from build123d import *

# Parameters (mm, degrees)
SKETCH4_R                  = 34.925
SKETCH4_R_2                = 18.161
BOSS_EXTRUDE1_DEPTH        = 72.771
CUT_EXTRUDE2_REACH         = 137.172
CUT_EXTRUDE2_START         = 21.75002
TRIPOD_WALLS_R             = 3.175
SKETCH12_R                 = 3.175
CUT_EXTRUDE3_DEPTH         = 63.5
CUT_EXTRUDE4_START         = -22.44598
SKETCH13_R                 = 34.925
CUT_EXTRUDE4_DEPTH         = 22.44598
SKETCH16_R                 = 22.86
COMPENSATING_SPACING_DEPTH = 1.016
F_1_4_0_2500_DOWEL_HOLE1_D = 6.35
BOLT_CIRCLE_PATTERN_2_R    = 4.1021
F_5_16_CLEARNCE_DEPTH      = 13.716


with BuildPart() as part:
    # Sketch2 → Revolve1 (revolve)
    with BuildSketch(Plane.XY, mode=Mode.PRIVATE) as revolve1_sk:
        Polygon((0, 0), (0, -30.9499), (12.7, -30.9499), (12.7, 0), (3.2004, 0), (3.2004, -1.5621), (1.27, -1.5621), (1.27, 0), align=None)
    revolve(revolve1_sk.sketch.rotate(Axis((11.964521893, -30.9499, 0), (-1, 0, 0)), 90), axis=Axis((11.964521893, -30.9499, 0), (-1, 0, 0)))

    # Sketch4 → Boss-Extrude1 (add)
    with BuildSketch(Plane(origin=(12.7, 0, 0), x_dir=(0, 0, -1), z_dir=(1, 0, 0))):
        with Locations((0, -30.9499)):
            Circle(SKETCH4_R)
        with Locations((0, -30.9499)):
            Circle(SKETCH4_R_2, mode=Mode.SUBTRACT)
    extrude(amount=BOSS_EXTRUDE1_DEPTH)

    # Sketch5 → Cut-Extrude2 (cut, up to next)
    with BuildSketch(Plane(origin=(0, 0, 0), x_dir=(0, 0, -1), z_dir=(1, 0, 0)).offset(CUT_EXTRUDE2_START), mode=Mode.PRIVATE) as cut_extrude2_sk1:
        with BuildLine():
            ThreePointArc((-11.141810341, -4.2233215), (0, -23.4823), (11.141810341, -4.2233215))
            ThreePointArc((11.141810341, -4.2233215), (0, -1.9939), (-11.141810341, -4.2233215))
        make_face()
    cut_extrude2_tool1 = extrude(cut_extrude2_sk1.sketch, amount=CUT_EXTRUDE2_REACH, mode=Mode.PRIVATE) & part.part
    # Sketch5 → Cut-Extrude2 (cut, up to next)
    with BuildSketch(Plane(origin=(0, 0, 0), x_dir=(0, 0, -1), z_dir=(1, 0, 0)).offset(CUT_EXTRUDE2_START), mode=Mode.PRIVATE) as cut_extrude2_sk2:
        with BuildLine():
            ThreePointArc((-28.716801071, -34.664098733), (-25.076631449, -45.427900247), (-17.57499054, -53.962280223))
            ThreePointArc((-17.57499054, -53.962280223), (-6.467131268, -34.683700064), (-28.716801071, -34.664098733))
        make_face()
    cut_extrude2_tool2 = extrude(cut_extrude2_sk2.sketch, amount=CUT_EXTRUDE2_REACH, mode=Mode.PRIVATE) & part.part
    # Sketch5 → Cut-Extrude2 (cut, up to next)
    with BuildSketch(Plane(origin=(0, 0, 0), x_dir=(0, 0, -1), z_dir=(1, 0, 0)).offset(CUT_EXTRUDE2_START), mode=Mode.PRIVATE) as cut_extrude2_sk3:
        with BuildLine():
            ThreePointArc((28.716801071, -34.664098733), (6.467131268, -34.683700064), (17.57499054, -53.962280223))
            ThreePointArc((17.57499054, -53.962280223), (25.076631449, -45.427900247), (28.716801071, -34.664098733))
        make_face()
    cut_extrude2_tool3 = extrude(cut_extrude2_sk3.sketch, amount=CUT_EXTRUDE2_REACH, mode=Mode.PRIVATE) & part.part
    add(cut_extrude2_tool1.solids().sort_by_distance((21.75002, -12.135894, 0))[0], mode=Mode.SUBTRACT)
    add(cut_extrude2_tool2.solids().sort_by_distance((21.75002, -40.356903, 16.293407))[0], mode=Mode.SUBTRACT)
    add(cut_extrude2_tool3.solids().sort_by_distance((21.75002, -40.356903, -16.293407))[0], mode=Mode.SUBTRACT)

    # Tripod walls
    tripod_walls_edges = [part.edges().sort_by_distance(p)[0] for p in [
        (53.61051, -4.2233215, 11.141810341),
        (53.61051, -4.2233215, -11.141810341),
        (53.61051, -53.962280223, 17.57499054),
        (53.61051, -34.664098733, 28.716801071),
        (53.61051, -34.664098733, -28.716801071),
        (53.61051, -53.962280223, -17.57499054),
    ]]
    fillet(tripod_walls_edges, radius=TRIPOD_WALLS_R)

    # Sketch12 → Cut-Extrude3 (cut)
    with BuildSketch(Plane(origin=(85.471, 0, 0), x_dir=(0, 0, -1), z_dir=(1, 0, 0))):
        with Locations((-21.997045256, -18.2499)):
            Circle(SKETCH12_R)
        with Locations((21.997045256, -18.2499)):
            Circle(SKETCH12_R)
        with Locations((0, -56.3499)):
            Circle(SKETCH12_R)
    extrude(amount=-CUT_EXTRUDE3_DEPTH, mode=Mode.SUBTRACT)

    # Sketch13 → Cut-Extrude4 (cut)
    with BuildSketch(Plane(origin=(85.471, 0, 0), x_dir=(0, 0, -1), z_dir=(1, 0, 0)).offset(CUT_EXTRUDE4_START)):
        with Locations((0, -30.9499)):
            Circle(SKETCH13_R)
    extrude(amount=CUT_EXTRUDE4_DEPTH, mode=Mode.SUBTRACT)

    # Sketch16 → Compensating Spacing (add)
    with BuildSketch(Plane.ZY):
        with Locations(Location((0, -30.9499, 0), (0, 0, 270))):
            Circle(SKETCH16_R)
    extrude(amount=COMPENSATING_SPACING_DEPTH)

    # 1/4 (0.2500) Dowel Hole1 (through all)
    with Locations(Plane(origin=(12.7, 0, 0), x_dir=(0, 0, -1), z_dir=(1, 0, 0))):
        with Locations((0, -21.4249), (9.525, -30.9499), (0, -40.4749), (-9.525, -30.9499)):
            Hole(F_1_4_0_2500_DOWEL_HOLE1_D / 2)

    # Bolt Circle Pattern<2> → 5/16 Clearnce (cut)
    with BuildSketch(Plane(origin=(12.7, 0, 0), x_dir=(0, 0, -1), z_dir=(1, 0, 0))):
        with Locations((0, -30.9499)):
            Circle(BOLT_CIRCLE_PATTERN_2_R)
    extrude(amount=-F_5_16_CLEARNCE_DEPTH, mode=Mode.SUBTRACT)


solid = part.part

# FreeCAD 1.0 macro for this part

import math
import FreeCAD as App
import Part
import Sketcher
Q = App.Units.Quantity


def edges_at(feature, points):
    """Names of the edges that pass closest to the given points."""
    edges = feature.Shape.Edges
    near = lambda p: min(range(len(edges)), key=lambda i: edges[i].distToShape(Part.Vertex(*p))[0])
    return sorted({f"Edge{near(p) + 1}" for p in points})

doc = App.newDocument("Part")
body = doc.addObject("PartDesign::Body", "Body")

sketch1 = body.newObject("Sketcher::SketchObject", "Sketch")
sketch1.AttachmentSupport = (doc.getObject("XY_Plane"), [""])
sketch1.MapMode = "FlatFace"
sketch1.addGeometry(Part.LineSegment(App.Vector(0, 0, 0), App.Vector(0, -30.9, 0)), False)
sketch1.addGeometry(Part.LineSegment(App.Vector(0, -30.9, 0), App.Vector(12.7, -30.9, 0)), False)
sketch1.addGeometry(Part.LineSegment(App.Vector(12.7, -30.9, 0), App.Vector(12.7, 0, 0)), False)
sketch1.addGeometry(Part.LineSegment(App.Vector(12.7, 0, 0), App.Vector(3.2, 0, 0)), False)
sketch1.addGeometry(Part.LineSegment(App.Vector(3.2, 0, 0), App.Vector(3.2, -1.6, 0)), False)
sketch1.addGeometry(Part.LineSegment(App.Vector(3.2, -1.6, 0), App.Vector(1.3, -1.6, 0)), False)
sketch1.addGeometry(Part.LineSegment(App.Vector(1.3, -1.6, 0), App.Vector(1.3, 0, 0)), False)
sketch1.addGeometry(Part.LineSegment(App.Vector(1.3, 0, 0), App.Vector(0, 0, 0)), False)
sketch1.addGeometry(Part.LineSegment(App.Vector(12.7, -30.9, 0), App.Vector(0, -30.9, 0)), True)
sketch1.addConstraint(Sketcher.Constraint("Coincident", 0, 2, 1, 1))
sketch1.addConstraint(Sketcher.Constraint("Coincident", 1, 2, 2, 1))
sketch1.addConstraint(Sketcher.Constraint("Coincident", 2, 2, 3, 1))
sketch1.addConstraint(Sketcher.Constraint("Coincident", 3, 2, 4, 1))
sketch1.addConstraint(Sketcher.Constraint("Coincident", 4, 2, 5, 1))
sketch1.addConstraint(Sketcher.Constraint("Coincident", 5, 2, 6, 1))
sketch1.addConstraint(Sketcher.Constraint("Coincident", 6, 2, 7, 1))
sketch1.addConstraint(Sketcher.Constraint("Coincident", 7, 2, 0, 1))
sketch1.addConstraint(Sketcher.Constraint("Vertical", 0))
sketch1.addConstraint(Sketcher.Constraint("Horizontal", 1))
sketch1.addConstraint(Sketcher.Constraint("Vertical", 2))
sketch1.addConstraint(Sketcher.Constraint("Horizontal", 3))
sketch1.addConstraint(Sketcher.Constraint("Vertical", 4))
sketch1.addConstraint(Sketcher.Constraint("Horizontal", 5))
sketch1.addConstraint(Sketcher.Constraint("Vertical", 6))
sketch1.addConstraint(Sketcher.Constraint("Horizontal", 7))
sketch1.addConstraint(Sketcher.Constraint("Horizontal", 8))
sketch1.addConstraint(Sketcher.Constraint("Coincident", 7, 2, -1, 1))
sketch1.addConstraint(Sketcher.Constraint("Coincident", 8, 1, 1, 2))
sketch1.addConstraint(Sketcher.Constraint("PointOnObject", 2, 2, -1))
sketch1.addConstraint(Sketcher.Constraint("PointOnObject", 8, 2, -2))
sketch1.addConstraint(Sketcher.Constraint("DistanceX", 1, 1, 1, 2, Q("0.5 in")))
sketch1.addConstraint(Sketcher.Constraint("DistanceX", 7, 2, 7, 1, Q("0.05 in")))
sketch1.addConstraint(Sketcher.Constraint("DistanceX", 3, 2, 3, 1, Q("0.374 in")))
sketch1.addConstraint(Sketcher.Constraint("DistanceY", 0, 2, 0, 1, Q("1.2185 in")))
sketch1.addConstraint(Sketcher.Constraint("DistanceY", 4, 2, 4, 1, Q("0.0615 in")))
revolution = body.newObject("PartDesign::Revolution", "Revolution")
revolution.Profile = sketch1
revolution.ReferenceAxis = (sketch1, ["Axis0"])
revolution.Angle = 360

sketch2 = body.newObject("Sketcher::SketchObject", "Sketch001")
sketch2.AttachmentSupport = (doc.getObject("YZ_Plane"), [""])
sketch2.MapMode = "FlatFace"
sketch2.AttachmentOffset = App.Placement(App.Vector(0, 0, 0.5 * 25.4), App.Rotation())
sketch2.addGeometry(Part.Circle(App.Vector(-31, 0, 0), App.Vector(0, 0, 1), 35), False)
sketch2.addGeometry(Part.Circle(App.Vector(-31, 0, 0), App.Vector(0, 0, 1), 18), False)
sketch2.addConstraint(Sketcher.Constraint("Coincident", 1, 3, 0, 3))
sketch2.addConstraint(Sketcher.Constraint("PointOnObject", 0, 3, -1))
sketch2.addConstraint(Sketcher.Constraint("Diameter", 0, Q("2.75 in")))
sketch2.addConstraint(Sketcher.Constraint("Diameter", 1, Q("1.43 in")))
sketch2.addConstraint(Sketcher.Constraint("DistanceX", 0, 3, -1, 1, Q("1.2185 in")))
pad1 = body.newObject("PartDesign::Pad", "Pad")
pad1.Profile = sketch2
pad1.Length = Q("2.865 in")

sketch3 = body.newObject("Sketcher::SketchObject", "Sketch002")
sketch3.AttachmentSupport = (doc.getObject("YZ_Plane"), [""])
sketch3.MapMode = "FlatFace"
sketch3.AttachmentOffset = App.Placement(App.Vector(0, 0, 0.8563 * 25.4), App.Rotation())
sketch3.addGeometry(Part.ArcOfCircle(Part.Circle(App.Vector(-11, 0, 0), App.Vector(0, 0, 1), 13), math.radians(60), math.radians(300)), False)
sketch3.addGeometry(Part.ArcOfCircle(Part.Circle(App.Vector(-31, 0, 0), App.Vector(0, 0, 1), 29), math.radians(-23), math.radians(23)), False)
sketch3.addConstraint(Sketcher.Constraint("Coincident", 0, 1, 1, 2))
sketch3.addConstraint(Sketcher.Constraint("Coincident", 1, 1, 0, 2))
sketch3.addConstraint(Sketcher.Constraint("Symmetric", 0, 1, 1, 1, -1))
sketch3.addConstraint(Sketcher.Constraint("Radius", 1, Q("1.14 in")))
sketch3.addConstraint(Sketcher.Constraint("Radius", 0, Q("0.506 in")))
sketch3.addConstraint(Sketcher.Constraint("DistanceX", 1, 3, 0, 3, Q("0.8 in")))
sketch3.addConstraint(Sketcher.Constraint("DistanceX", 0, 3, -1, 1, Q("0.4185 in")))
pocket1 = body.newObject("PartDesign::Pocket", "Pocket")
pocket1.Profile = sketch3
pocket1.Type = "UpToFirst"
pocket1.Reversed = True

sketch4 = body.newObject("Sketcher::SketchObject", "Sketch003")
sketch4.AttachmentSupport = (doc.getObject("YZ_Plane"), [""])
sketch4.MapMode = "FlatFace"
sketch4.AttachmentOffset = App.Placement(App.Vector(0, 0, 0.8563 * 25.4), App.Rotation())
sketch4.addGeometry(Part.ArcOfCircle(Part.Circle(App.Vector(-31, 0, 0), App.Vector(0, 0, 1), 29), math.radians(97), math.radians(143)), False)
sketch4.addGeometry(Part.ArcOfCircle(Part.Circle(App.Vector(-41, 18, 0), App.Vector(0, 0, 1), 13), math.radians(-180), math.radians(60)), False)
sketch4.addConstraint(Sketcher.Constraint("Coincident", 0, 1, 1, 2))
sketch4.addConstraint(Sketcher.Constraint("Coincident", 1, 1, 0, 2))
sketch4.addConstraint(Sketcher.Constraint("PointOnObject", 0, 3, -1))
sketch4.addConstraint(Sketcher.Constraint("Radius", 0, Q("1.14 in")))
sketch4.addConstraint(Sketcher.Constraint("Radius", 1, Q("0.506 in")))
sketch4.addConstraint(Sketcher.Constraint("DistanceX", 1, 3, 0, 3, Q("0.4 in")))
sketch4.addConstraint(Sketcher.Constraint("DistanceX", 0, 3, -1, 1, Q("1.2185 in")))
sketch4.addConstraint(Sketcher.Constraint("DistanceX", 0, 1, -1, 1, Q("34.664099 mm")))
pocket2 = body.newObject("PartDesign::Pocket", "Pocket001")
pocket2.Profile = sketch4
pocket2.Type = "UpToFirst"
pocket2.Reversed = True

sketch5 = body.newObject("Sketcher::SketchObject", "Sketch004")
sketch5.AttachmentSupport = (doc.getObject("YZ_Plane"), [""])
sketch5.MapMode = "FlatFace"
sketch5.AttachmentOffset = App.Placement(App.Vector(0, 0, 0.8563 * 25.4), App.Rotation())
sketch5.addGeometry(Part.ArcOfCircle(Part.Circle(App.Vector(-41, -18, 0), App.Vector(0, 0, 1), 13), math.radians(-60), math.radians(180)), False)
sketch5.addGeometry(Part.ArcOfCircle(Part.Circle(App.Vector(-31, 0, 0), App.Vector(0, 0, 1), 29), math.radians(-143), math.radians(-97)), False)
sketch5.addConstraint(Sketcher.Constraint("Coincident", 0, 1, 1, 2))
sketch5.addConstraint(Sketcher.Constraint("Coincident", 1, 1, 0, 2))
sketch5.addConstraint(Sketcher.Constraint("PointOnObject", 1, 3, -1))
sketch5.addConstraint(Sketcher.Constraint("Radius", 1, Q("1.14 in")))
sketch5.addConstraint(Sketcher.Constraint("Radius", 0, Q("0.506 in")))
sketch5.addConstraint(Sketcher.Constraint("DistanceX", 0, 3, 1, 3, Q("0.4 in")))
sketch5.addConstraint(Sketcher.Constraint("DistanceX", 0, 3, -1, 1, Q("1.6185 in")))
sketch5.addConstraint(Sketcher.Constraint("DistanceX", 0, 1, -1, 1, Q("34.664099 mm")))
pocket3 = body.newObject("PartDesign::Pocket", "Pocket002")
pocket3.Profile = sketch5
pocket3.Type = "UpToFirst"
pocket3.Reversed = True
doc.recompute()

fillet = body.newObject("PartDesign::Fillet", "Fillet")
fillet.Base = (pocket3, edges_at(pocket3, [
    (53.611, -4.223, 11.142),
    (53.611, -4.223, -11.142),
    (53.611, -53.962, 17.575),
    (53.611, -34.664, 28.717),
    (53.611, -34.664, -28.717),
    (53.611, -53.962, -17.575),
]))
fillet.Radius = Q("0.125 in")

sketch6 = body.newObject("Sketcher::SketchObject", "Sketch005")
sketch6.AttachmentSupport = (doc.getObject("YZ_Plane"), [""])
sketch6.MapMode = "FlatFace"
sketch6.AttachmentOffset = App.Placement(App.Vector(0, 0, 3.365 * 25.4), App.Rotation())
sketch6.addGeometry(Part.Circle(App.Vector(-18.2, 22, 0), App.Vector(0, 0, 1), 3.2), False)
sketch6.addGeometry(Part.Circle(App.Vector(-18.2, -22, 0), App.Vector(0, 0, 1), 3.2), False)
sketch6.addGeometry(Part.Circle(App.Vector(-56.3, 0, 0), App.Vector(0, 0, 1), 3.2), False)
sketch6.addConstraint(Sketcher.Constraint("Equal", 0, 1))
sketch6.addConstraint(Sketcher.Constraint("Equal", 1, 2))
sketch6.addConstraint(Sketcher.Constraint("Symmetric", 0, 3, 1, 3, -1))
sketch6.addConstraint(Sketcher.Constraint("PointOnObject", 2, 3, -1))
sketch6.addConstraint(Sketcher.Constraint("Diameter", 0, Q("0.25 in")))
sketch6.addConstraint(Sketcher.Constraint("DistanceX", 2, 3, 0, 3, Q("1.5 in")))
sketch6.addConstraint(Sketcher.Constraint("DistanceX", 0, 3, -1, 1, Q("0.7185 in")))
sketch6.addConstraint(Sketcher.Constraint("DistanceY", 1, 3, 0, 3, Q("43.994091 mm")))
pocket4 = body.newObject("PartDesign::Pocket", "Pocket003")
pocket4.Profile = sketch6
pocket4.Length = Q("2.5 in")

sketch7 = body.newObject("Sketcher::SketchObject", "Sketch006")
sketch7.AttachmentSupport = (doc.getObject("YZ_Plane"), [""])
sketch7.MapMode = "FlatFace"
sketch7.AttachmentOffset = App.Placement(App.Vector(0, 0, 2.4813 * 25.4), App.Rotation())
sketch7.addGeometry(Part.Circle(App.Vector(-31, 0, 0), App.Vector(0, 0, 1), 35), False)
sketch7.addConstraint(Sketcher.Constraint("PointOnObject", 0, 3, -1))
sketch7.addConstraint(Sketcher.Constraint("Diameter", 0, Q("2.75 in")))
sketch7.addConstraint(Sketcher.Constraint("DistanceX", 0, 3, -1, 1, Q("1.2185 in")))
pocket5 = body.newObject("PartDesign::Pocket", "Pocket004")
pocket5.Profile = sketch7
pocket5.Length = Q("0.8837 in")
pocket5.Reversed = True

sketch8 = body.newObject("Sketcher::SketchObject", "Sketch007")
sketch8.AttachmentSupport = (doc.getObject("YZ_Plane"), [""])
sketch8.MapMode = "FlatFace"
sketch8.addGeometry(Part.Circle(App.Vector(-31, 0, 0), App.Vector(0, 0, 1), 23), False)
sketch8.addConstraint(Sketcher.Constraint("PointOnObject", 0, 3, -1))
sketch8.addConstraint(Sketcher.Constraint("Diameter", 0, Q("1.8 in")))
sketch8.addConstraint(Sketcher.Constraint("DistanceX", 0, 3, -1, 1, Q("1.2185 in")))
pad2 = body.newObject("PartDesign::Pad", "Pad001")
pad2.Profile = sketch8
pad2.Length = Q("0.04 in")
pad2.Reversed = True

sketch9 = body.newObject("Sketcher::SketchObject", "Sketch008")
sketch9.AttachmentSupport = (doc.getObject("YZ_Plane"), [""])
sketch9.MapMode = "FlatFace"
sketch9.AttachmentOffset = App.Placement(App.Vector(0, 0, 0.5 * 25.4), App.Rotation())
sketch9.addGeometry(Part.Circle(App.Vector(-21.4, 0, 0), App.Vector(0, 0, 1), 3.2), False)
sketch9.addGeometry(Part.Circle(App.Vector(-30.9, -9.5, 0), App.Vector(0, 0, 1), 3.2), False)
sketch9.addGeometry(Part.Circle(App.Vector(-40.5, 0, 0), App.Vector(0, 0, 1), 3.2), False)
sketch9.addGeometry(Part.Circle(App.Vector(-30.9, 9.5, 0), App.Vector(0, 0, 1), 3.2), False)
sketch9.addConstraint(Sketcher.Constraint("Equal", 0, 1))
sketch9.addConstraint(Sketcher.Constraint("Equal", 1, 2))
sketch9.addConstraint(Sketcher.Constraint("Equal", 2, 3))
sketch9.addConstraint(Sketcher.Constraint("Symmetric", 1, 3, 3, 3, -1))
sketch9.addConstraint(Sketcher.Constraint("PointOnObject", 0, 3, -1))
sketch9.addConstraint(Sketcher.Constraint("PointOnObject", 2, 3, -1))
sketch9.addConstraint(Sketcher.Constraint("Diameter", 0, Q("0.25 in")))
sketch9.addConstraint(Sketcher.Constraint("DistanceX", 2, 3, 0, 3, Q("0.75 in")))
sketch9.addConstraint(Sketcher.Constraint("DistanceY", 1, 3, 3, 3, Q("0.75 in")))
sketch9.addConstraint(Sketcher.Constraint("DistanceX", 1, 3, 0, 3, Q("0.375 in")))
sketch9.addConstraint(Sketcher.Constraint("DistanceX", 0, 3, -1, 1, Q("0.8435 in")))
doc.recompute()
hole = body.newObject("PartDesign::Hole", "Hole")
hole.Profile = sketch9
hole.ThreadType = "None"
hole.Diameter = Q("0.25 in")
hole.DepthType = "ThroughAll"

sketch10 = body.newObject("Sketcher::SketchObject", "Sketch009")
sketch10.AttachmentSupport = (doc.getObject("YZ_Plane"), [""])
sketch10.MapMode = "FlatFace"
sketch10.AttachmentOffset = App.Placement(App.Vector(0, 0, 0.5 * 25.4), App.Rotation())
sketch10.addGeometry(Part.Circle(App.Vector(-30.9, 0, 0), App.Vector(0, 0, 1), 4.1), False)
sketch10.addConstraint(Sketcher.Constraint("PointOnObject", 0, 3, -1))
sketch10.addConstraint(Sketcher.Constraint("Diameter", 0, Q("0.323 in")))
sketch10.addConstraint(Sketcher.Constraint("DistanceX", 0, 3, -1, 1, Q("1.2185 in")))
pocket6 = body.newObject("PartDesign::Pocket", "Pocket005")
pocket6.Profile = sketch10
pocket6.Length = Q("0.54 in")

doc.recompute()
